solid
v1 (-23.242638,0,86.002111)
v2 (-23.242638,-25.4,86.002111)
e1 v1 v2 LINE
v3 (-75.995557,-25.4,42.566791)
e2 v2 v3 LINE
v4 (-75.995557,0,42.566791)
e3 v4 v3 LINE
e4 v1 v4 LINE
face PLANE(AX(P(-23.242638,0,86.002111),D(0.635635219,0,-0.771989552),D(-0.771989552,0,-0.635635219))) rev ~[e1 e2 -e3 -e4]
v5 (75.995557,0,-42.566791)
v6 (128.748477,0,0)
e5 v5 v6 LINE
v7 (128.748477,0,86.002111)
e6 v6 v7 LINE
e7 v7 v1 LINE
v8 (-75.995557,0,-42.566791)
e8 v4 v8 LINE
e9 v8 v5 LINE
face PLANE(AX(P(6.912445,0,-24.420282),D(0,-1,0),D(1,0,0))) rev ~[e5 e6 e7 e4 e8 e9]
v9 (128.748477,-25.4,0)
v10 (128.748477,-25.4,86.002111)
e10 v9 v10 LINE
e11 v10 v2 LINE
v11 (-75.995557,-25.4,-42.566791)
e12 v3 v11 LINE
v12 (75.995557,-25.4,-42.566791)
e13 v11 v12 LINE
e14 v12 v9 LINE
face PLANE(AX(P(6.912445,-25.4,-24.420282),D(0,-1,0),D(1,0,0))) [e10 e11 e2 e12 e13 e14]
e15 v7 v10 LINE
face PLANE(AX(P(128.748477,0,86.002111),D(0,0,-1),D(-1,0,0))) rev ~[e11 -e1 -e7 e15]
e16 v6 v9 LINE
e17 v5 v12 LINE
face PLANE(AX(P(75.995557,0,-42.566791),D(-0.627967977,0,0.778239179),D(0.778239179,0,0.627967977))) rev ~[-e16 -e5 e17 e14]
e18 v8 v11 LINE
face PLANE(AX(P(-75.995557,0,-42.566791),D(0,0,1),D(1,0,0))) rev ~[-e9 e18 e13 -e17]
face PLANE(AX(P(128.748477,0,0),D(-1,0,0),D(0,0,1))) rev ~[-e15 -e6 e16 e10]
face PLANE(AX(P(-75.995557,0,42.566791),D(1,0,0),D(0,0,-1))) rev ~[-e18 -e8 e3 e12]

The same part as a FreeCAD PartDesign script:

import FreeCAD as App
import Part
import Sketcher
Q = App.Units.Quantity

doc = App.newDocument("Part")
body = doc.addObject("PartDesign::Body", "Body")

sketch1 = body.newObject("Sketcher::SketchObject", "Sketch")
sketch1.AttachmentSupport = (doc.getObject("XZ_Plane"), [""])
sketch1.MapMode = "FlatFace"
sketch1.addGeometry([
    Part.LineSegment(App.Vector(-76, -43, 0), App.Vector(76, -43, 0)),
    Part.LineSegment(App.Vector(76, -43, 0), App.Vector(129, 0, 0)),
    Part.LineSegment(App.Vector(129, 0, 0), App.Vector(129, 86, 0)),
    Part.LineSegment(App.Vector(129, 86, 0), App.Vector(-23, 86, 0)),
    Part.LineSegment(App.Vector(-23, 86, 0), App.Vector(-76, 43, 0)),
    Part.LineSegment(App.Vector(-76, 43, 0), App.Vector(-76, -43, 0)),
], False)
sketch1.addConstraint([
    Sketcher.Constraint("Coincident", 0, 2, 1, 1),
    Sketcher.Constraint("Coincident", 1, 2, 2, 1),
    Sketcher.Constraint("Coincident", 2, 2, 3, 1),
    Sketcher.Constraint("Coincident", 3, 2, 4, 1),
    Sketcher.Constraint("Coincident", 4, 2, 5, 1),
    Sketcher.Constraint("Coincident", 5, 2, 0, 1),
    Sketcher.Constraint("Horizontal", 0),
    Sketcher.Constraint("Vertical", 2),
    Sketcher.Constraint("Horizontal", 3),
    Sketcher.Constraint("Vertical", 5),
    Sketcher.Constraint("Symmetric", 0, 2, 4, 2, -1, 1),
    Sketcher.Constraint("PointOnObject", 1, 2, -1),
    Sketcher.Constraint("Equal", 0, 3),
    Sketcher.Constraint("DistanceY", 2, 1, 2, 2, Q("86.002111 mm")),
    Sketcher.Constraint("DistanceY", 0, 2, 2, 2, Q("128.568902 mm")),
    Sketcher.Constraint("Distance", 1, Q("67.784971 mm")),
    Sketcher.Constraint("DistanceX", 0, 1, 0, 2, Q("151.991114 mm")),
])
pad1 = body.newObject("PartDesign::Pad", "Pad")
pad1.Profile = sketch1
pad1.Length = Q("1 in")

doc.recompute()
